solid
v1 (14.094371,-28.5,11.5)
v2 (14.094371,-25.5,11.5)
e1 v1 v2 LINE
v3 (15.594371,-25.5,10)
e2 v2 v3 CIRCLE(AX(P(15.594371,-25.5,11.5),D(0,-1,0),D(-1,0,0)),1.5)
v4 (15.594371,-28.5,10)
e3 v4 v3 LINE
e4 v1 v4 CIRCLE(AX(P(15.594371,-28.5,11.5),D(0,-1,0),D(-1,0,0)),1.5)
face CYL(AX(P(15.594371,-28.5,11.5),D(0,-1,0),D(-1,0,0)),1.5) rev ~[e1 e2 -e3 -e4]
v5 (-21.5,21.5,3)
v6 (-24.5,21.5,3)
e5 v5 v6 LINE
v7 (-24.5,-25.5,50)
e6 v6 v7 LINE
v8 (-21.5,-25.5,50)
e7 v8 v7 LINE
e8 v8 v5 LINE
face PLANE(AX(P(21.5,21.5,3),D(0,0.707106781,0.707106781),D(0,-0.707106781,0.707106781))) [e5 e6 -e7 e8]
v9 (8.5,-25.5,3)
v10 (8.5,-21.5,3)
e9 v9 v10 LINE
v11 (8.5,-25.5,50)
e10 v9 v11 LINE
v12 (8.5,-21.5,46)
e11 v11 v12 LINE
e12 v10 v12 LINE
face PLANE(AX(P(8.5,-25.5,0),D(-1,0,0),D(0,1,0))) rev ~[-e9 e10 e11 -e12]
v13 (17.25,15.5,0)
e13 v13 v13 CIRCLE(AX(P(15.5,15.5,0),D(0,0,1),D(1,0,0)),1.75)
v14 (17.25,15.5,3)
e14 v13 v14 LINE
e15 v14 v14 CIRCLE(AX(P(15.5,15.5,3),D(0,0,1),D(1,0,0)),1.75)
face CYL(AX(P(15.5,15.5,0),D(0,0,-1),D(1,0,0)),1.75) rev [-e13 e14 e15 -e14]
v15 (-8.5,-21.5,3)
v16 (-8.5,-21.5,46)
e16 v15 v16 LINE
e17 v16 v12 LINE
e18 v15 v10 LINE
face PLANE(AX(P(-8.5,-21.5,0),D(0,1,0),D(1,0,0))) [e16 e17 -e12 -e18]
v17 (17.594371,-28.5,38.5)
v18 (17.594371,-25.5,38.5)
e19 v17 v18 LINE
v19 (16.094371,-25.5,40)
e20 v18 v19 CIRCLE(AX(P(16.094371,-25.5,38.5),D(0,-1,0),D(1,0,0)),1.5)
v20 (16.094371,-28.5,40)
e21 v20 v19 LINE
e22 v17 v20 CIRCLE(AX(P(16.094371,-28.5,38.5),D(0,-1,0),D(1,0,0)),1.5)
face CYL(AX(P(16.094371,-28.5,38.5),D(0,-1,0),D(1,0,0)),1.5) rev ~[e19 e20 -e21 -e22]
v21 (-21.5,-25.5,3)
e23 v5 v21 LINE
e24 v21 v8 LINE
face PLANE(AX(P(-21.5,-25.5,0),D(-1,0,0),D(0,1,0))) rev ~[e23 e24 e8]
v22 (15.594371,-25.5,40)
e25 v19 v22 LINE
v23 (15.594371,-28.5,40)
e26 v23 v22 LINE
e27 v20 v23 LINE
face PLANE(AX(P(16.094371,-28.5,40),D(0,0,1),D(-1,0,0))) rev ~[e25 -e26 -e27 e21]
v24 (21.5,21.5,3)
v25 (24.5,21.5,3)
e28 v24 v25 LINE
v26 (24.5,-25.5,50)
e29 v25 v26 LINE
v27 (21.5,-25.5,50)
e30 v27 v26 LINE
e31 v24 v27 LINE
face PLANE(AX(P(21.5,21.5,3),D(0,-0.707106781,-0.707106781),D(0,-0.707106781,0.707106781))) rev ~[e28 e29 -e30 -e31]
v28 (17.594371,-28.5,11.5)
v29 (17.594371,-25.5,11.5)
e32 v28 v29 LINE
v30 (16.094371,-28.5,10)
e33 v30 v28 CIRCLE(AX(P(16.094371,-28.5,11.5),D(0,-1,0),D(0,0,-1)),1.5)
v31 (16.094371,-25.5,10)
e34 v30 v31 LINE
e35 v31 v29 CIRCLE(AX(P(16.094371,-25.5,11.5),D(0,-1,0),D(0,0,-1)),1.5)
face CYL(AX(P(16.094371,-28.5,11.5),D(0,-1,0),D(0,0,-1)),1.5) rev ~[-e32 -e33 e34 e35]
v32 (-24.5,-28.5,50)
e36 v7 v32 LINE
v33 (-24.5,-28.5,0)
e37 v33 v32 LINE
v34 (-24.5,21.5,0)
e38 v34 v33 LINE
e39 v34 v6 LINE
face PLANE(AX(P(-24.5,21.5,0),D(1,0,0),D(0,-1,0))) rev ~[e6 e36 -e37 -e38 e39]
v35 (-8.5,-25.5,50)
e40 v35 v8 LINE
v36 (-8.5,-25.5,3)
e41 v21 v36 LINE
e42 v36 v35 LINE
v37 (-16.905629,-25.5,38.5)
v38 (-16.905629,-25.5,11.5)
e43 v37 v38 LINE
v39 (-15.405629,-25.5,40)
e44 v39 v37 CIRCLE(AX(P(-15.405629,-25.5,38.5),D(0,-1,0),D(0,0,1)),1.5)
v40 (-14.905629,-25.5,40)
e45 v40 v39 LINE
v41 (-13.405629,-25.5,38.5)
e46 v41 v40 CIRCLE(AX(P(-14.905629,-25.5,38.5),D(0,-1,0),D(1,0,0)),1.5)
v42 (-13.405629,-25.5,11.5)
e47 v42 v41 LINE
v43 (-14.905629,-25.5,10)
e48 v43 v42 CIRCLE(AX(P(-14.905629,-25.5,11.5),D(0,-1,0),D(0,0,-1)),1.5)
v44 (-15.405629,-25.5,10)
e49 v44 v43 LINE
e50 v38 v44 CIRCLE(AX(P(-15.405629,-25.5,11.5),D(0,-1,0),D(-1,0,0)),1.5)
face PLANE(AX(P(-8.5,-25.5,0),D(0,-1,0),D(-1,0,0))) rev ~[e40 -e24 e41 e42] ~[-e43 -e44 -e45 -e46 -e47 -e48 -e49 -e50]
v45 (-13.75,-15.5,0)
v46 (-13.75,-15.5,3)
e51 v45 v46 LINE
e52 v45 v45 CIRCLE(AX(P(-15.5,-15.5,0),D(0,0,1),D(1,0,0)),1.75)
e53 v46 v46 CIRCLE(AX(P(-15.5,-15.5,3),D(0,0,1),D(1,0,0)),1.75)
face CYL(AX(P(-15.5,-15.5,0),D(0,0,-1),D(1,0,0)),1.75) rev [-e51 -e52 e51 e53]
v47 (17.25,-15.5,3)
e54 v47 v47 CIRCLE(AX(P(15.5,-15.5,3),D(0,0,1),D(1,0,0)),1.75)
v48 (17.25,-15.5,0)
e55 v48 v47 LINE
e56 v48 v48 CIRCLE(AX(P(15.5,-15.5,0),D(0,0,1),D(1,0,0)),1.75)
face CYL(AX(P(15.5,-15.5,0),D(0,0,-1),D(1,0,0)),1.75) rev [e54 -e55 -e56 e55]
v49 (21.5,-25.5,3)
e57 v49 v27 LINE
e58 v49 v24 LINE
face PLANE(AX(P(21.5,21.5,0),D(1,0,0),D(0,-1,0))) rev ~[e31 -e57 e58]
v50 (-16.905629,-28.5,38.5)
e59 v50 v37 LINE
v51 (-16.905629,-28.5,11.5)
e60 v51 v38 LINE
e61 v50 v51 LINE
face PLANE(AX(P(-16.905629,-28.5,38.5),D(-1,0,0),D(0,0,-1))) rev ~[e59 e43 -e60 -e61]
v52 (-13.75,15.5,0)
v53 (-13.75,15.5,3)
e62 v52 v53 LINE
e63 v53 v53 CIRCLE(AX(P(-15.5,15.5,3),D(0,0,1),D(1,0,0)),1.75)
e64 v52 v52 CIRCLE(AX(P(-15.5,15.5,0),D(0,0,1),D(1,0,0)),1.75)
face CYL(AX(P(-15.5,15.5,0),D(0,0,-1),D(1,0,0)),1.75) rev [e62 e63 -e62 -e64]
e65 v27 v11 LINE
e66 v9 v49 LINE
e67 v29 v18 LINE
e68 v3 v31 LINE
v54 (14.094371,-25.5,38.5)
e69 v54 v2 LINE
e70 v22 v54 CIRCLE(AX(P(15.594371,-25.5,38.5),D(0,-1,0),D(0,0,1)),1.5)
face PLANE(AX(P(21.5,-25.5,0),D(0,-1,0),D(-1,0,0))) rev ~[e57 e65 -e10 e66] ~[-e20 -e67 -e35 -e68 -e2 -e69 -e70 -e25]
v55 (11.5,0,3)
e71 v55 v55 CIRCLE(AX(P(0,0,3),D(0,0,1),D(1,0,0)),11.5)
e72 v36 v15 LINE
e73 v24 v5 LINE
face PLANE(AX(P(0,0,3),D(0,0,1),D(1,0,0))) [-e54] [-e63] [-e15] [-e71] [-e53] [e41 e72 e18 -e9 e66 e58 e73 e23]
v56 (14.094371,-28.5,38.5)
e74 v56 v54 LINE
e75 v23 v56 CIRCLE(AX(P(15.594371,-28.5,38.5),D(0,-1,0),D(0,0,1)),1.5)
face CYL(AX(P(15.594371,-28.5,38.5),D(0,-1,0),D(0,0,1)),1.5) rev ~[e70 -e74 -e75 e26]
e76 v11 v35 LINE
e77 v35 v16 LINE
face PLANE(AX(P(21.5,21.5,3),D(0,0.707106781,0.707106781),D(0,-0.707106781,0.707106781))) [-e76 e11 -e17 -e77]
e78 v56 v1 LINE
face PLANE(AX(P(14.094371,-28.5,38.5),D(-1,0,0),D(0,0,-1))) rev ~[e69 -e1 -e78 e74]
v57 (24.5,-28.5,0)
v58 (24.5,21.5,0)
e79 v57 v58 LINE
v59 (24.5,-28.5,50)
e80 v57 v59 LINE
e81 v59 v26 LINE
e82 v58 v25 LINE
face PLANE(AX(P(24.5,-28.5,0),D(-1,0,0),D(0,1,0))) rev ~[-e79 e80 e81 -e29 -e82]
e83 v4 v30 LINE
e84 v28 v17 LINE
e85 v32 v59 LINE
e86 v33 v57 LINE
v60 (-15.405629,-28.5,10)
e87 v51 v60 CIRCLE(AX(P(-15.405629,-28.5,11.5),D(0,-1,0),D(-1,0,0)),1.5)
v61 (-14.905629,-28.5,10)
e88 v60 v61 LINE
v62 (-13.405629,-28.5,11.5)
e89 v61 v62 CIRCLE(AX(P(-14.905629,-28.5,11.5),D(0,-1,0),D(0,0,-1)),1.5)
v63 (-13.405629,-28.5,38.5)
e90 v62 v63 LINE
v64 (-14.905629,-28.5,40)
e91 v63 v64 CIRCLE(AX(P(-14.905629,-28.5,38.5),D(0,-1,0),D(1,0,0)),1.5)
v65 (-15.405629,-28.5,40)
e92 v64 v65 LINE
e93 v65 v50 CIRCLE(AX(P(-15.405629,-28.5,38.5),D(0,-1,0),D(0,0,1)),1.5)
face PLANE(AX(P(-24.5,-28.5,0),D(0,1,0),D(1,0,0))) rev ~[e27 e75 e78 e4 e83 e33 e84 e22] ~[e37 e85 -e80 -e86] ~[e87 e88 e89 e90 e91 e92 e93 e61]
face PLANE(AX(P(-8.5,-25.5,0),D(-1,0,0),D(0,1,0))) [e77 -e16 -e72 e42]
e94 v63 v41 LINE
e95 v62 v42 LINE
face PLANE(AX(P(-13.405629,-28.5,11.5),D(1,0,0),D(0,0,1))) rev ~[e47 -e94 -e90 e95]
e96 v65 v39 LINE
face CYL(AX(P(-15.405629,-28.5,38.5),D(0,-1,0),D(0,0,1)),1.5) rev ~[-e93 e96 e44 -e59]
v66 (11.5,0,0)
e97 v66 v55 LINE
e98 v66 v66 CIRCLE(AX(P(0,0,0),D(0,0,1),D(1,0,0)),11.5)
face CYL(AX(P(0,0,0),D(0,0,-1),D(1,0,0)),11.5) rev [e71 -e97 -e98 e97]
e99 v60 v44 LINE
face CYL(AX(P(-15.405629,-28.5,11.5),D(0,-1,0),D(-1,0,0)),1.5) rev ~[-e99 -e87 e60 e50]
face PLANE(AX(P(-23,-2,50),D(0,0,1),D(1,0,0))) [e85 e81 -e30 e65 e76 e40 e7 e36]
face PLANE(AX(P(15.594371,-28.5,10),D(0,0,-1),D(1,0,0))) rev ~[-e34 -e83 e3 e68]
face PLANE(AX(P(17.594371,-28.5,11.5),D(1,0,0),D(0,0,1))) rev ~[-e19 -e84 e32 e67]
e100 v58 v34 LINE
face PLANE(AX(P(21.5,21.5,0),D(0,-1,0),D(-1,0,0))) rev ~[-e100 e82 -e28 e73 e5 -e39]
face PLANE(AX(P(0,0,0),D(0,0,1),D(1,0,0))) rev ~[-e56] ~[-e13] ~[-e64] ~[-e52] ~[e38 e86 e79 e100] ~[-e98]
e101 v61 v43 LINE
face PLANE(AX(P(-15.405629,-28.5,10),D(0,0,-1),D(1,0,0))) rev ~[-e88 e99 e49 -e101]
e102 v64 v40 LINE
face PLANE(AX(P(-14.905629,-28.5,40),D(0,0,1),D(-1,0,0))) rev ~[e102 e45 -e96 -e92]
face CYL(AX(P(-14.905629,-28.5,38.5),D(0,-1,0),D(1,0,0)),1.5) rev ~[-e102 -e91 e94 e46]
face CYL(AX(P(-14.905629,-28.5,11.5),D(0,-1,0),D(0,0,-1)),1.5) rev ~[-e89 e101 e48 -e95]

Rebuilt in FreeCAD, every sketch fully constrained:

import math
import FreeCAD as App
import Part
import Sketcher

V = App.Vector
Q = App.Units.Quantity


def add_polygon(sketch, points):
    """Adds a closed chain of lines whose ends are joined by coincident constraints."""
    first, n = sketch.GeometryCount, len(points)
    for a, b in zip(points, points[1:] + points[:1]):
        sketch.addGeometry(Part.LineSegment(App.Vector(*a, 0), App.Vector(*b, 0)), False)
    for i in range(n):
        sketch.addConstraint(Sketcher.Constraint("Coincident", first + i, 2, first + (i + 1) % n, 1))

doc = App.newDocument("Part")
body = doc.addObject("PartDesign::Body", "Body")

# Sketch on XY plane
sketch1 = doc.addObject("Sketcher::SketchObject", "Sketch")
body.addObject(sketch1)
sketch1.AttachmentSupport = (doc.XY_Plane, [""])
sketch1.MapMode = "FlatFace"
add_polygon(sketch1, [(-21.5, 21.5), (-24.5, 21.5), (-24.5, -28.5), (24.5, -28.5), (24.5, 21.5), (21.5, 21.5), (21.5, -25.5), (8.5, -25.5), (8.5, -21.5), (-8.5, -21.5), (-8.5, -25.5), (-21.5, -25.5)])  # lines 0-11
sketch1.addConstraint([
    Sketcher.Constraint("Horizontal", 0),
    Sketcher.Constraint("Vertical", 1),
    Sketcher.Constraint("Horizontal", 2),
    Sketcher.Constraint("Vertical", 3),
    Sketcher.Constraint("Horizontal", 4),
    Sketcher.Constraint("Vertical", 5),
    Sketcher.Constraint("Horizontal", 6),
    Sketcher.Constraint("Vertical", 7),
    Sketcher.Constraint("Horizontal", 8),
    Sketcher.Constraint("Vertical", 9),
    Sketcher.Constraint("Horizontal", 10),
    Sketcher.Constraint("Vertical", 11),
    Sketcher.Constraint("Symmetric", 0, 2, 3, 2, -2),
    Sketcher.Constraint("Symmetric", 6, 2, 9, 2, -2),
    Sketcher.Constraint("Equal", 0, 4),
    Sketcher.Constraint("DistanceX", 0, 2, 0, 1, Q("3 mm")),
    Sketcher.Constraint("DistanceX", 2, 1, 2, 2, Q("49 mm")),
    Sketcher.Constraint("DistanceX", 6, 2, 6, 1, Q("13 mm")),
    Sketcher.Constraint("DistanceY", 1, 2, 1, 1, Q("50 mm")),
    Sketcher.Constraint("DistanceY", 5, 2, 5, 1, Q("47 mm")),
    Sketcher.Constraint("DistanceY", 7, 1, 7, 2, Q("4 mm")),
    Sketcher.Constraint("DistanceY", -1, 1, 0, 2, Q("21.5 mm")),
])
pad1 = doc.addObject("PartDesign::Pad", "Pad")
body.addObject(pad1)
pad1.Profile = sketch1
pad1.Length = 50

# Sketch on XY plane
sketch2 = doc.addObject("Sketcher::SketchObject", "Sketch001")
body.addObject(sketch2)
sketch2.AttachmentSupport = (doc.XY_Plane, [""])
sketch2.MapMode = "FlatFace"
add_polygon(sketch2, [(21.5, 21.5), (-21.5, 21.5), (-21.5, -25.5), (-8.5, -25.5), (-8.5, -21.5), (8.5, -21.5), (8.5, -25.5), (21.5, -25.5)])  # lines 0-7
sketch2.addGeometry(Part.Circle(V(-15.5, -15.5, 0), V(0, 0, 1), 1.8), False)  # 8
sketch2.addGeometry(Part.Circle(V(15.5, -15.5, 0), V(0, 0, 1), 1.8), False)  # 9
sketch2.addGeometry(Part.Circle(V(-15.5, 15.5, 0), V(0, 0, 1), 1.8), False)  # 10
sketch2.addGeometry(Part.Circle(V(0, 0, 0), V(0, 0, 1), 11.5), False)  # 11
sketch2.addGeometry(Part.Circle(V(15.5, 15.5, 0), V(0, 0, 1), 1.8), False)  # 12
sketch2.addConstraint([
    Sketcher.Constraint("Horizontal", 0),
    Sketcher.Constraint("Vertical", 1),
    Sketcher.Constraint("Horizontal", 2),
    Sketcher.Constraint("Vertical", 3),
    Sketcher.Constraint("Horizontal", 4),
    Sketcher.Constraint("Vertical", 5),
    Sketcher.Constraint("Horizontal", 6),
    Sketcher.Constraint("Vertical", 7),
    Sketcher.Constraint("Coincident", 11, 3, -1, 1),
    Sketcher.Constraint("Equal", 8, 9),
    Sketcher.Constraint("Equal", 9, 10),
    Sketcher.Constraint("Equal", 10, 12),
    Sketcher.Constraint("Symmetric", 9, 3, 10, 3, -1, 1),
    Sketcher.Constraint("Symmetric", 8, 3, 12, 3, -1, 1),
    Sketcher.Constraint("Symmetric", 8, 3, 9, 3, -2),
    Sketcher.Constraint("Symmetric", 2, 2, 5, 2, -2),
    Sketcher.Constraint("Equal", 2, 6),
    Sketcher.Constraint("Diameter", 11, Q("23 mm")),
    Sketcher.Constraint("Diameter", 8, Q("3.5 mm")),
    Sketcher.Constraint("DistanceX", 0, 2, 0, 1, Q("43 mm")),
    Sketcher.Constraint("DistanceX", 2, 1, 2, 2, Q("13 mm")),
    Sketcher.Constraint("DistanceY", 1, 2, 1, 1, Q("47 mm")),
    Sketcher.Constraint("DistanceY", 3, 1, 3, 2, Q("4 mm")),
    Sketcher.Constraint("DistanceX", 8, 3, 9, 3, Q("31 mm")),
    Sketcher.Constraint("DistanceY", 8, 3, 10, 3, Q("31 mm")),
    Sketcher.Constraint("DistanceY", 10, 3, 0, 2, Q("6 mm")),
])
pad2 = doc.addObject("PartDesign::Pad", "Pad001")
body.addObject(pad2)
pad2.Profile = sketch2
pad2.Length = 3

# Sketch on YZ plane
sketch3 = doc.addObject("Sketcher::SketchObject", "Sketch002")
body.addObject(sketch3)
sketch3.AttachmentSupport = (doc.YZ_Plane, [""])
sketch3.MapMode = "FlatFace"
sketch3.AttachmentOffset = App.Placement(V(0, 0, 21.5), App.Rotation())
add_polygon(sketch3, [(22, 3), (-26, 50), (22, 50)])  # lines 0-2
sketch3.addConstraint([
    Sketcher.Constraint("Horizontal", 1),
    Sketcher.Constraint("Vertical", 2),
    Sketcher.Constraint("Equal", 1, 2),
    Sketcher.Constraint("DistanceX", 1, 1, 1, 2, Q("47 mm")),
    Sketcher.Constraint("DistanceY", -1, 1, 0, 2, Q("50 mm")),
    Sketcher.Constraint("DistanceX", 0, 2, -1, 1, Q("25.5 mm")),
])
pocket1 = doc.addObject("PartDesign::Pocket", "Pocket")
body.addObject(pocket1)
pocket1.Profile = sketch3
pocket1.Type = "ThroughAll"
pocket1.Midplane = True

# Sketch on XZ plane
sketch4 = doc.addObject("Sketcher::SketchObject", "Sketch003")
body.addObject(sketch4)
sketch4.AttachmentSupport = (doc.XZ_Plane, [""])
sketch4.MapMode = "FlatFace"
sketch4.AttachmentOffset = App.Placement(V(0, 0, 28.5), App.Rotation())
sketch4.addGeometry([
    Part.ArcOfCircle(Part.Circle(V(16.09, 38.5, 0), V(0, 0, 1), 1.5), math.radians(0), math.radians(90)),  # 0
    Part.LineSegment(V(16.09, 40, 0), V(15.59, 40, 0)),  # 1
    Part.ArcOfCircle(Part.Circle(V(15.59, 38.5, 0), V(0, 0, 1), 1.5), math.radians(90), math.radians(180)),  # 2
    Part.LineSegment(V(14.09, 38.5, 0), V(14.09, 11.5, 0)),  # 3
    Part.ArcOfCircle(Part.Circle(V(15.59, 11.5, 0), V(0, 0, 1), 1.5), math.radians(180), math.radians(270)),  # 4
    Part.LineSegment(V(15.59, 10, 0), V(16.09, 10, 0)),  # 5
    Part.ArcOfCircle(Part.Circle(V(16.09, 11.5, 0), V(0, 0, 1), 1.5), math.radians(-90), math.radians(0)),  # 6
    Part.LineSegment(V(17.59, 11.5, 0), V(17.59, 38.5, 0)),  # 7
    Part.LineSegment(V(-13.41, 11.5, 0), V(-13.41, 38.5, 0)),  # 8
    Part.ArcOfCircle(Part.Circle(V(-14.91, 38.5, 0), V(0, 0, 1), 1.5), math.radians(0), math.radians(90)),  # 9
    Part.LineSegment(V(-14.91, 40, 0), V(-15.41, 40, 0)),  # 10
    Part.ArcOfCircle(Part.Circle(V(-15.41, 38.5, 0), V(0, 0, 1), 1.5), math.radians(90), math.radians(180)),  # 11
    Part.LineSegment(V(-16.91, 38.5, 0), V(-16.91, 11.5, 0)),  # 12
    Part.ArcOfCircle(Part.Circle(V(-15.41, 11.5, 0), V(0, 0, 1), 1.5), math.radians(180), math.radians(270)),  # 13
    Part.LineSegment(V(-15.41, 10, 0), V(-14.91, 10, 0)),  # 14
    Part.ArcOfCircle(Part.Circle(V(-14.91, 11.5, 0), V(0, 0, 1), 1.5), math.radians(-90), math.radians(0)),  # 15
], False)
sketch4.addConstraint([
    Sketcher.Constraint("Tangent", 0, 2, 1, 1),
    Sketcher.Constraint("Tangent", 1, 2, 2, 1),
    Sketcher.Constraint("Tangent", 2, 2, 3, 1),
    Sketcher.Constraint("Tangent", 3, 2, 4, 1),
    Sketcher.Constraint("Tangent", 4, 2, 5, 1),
    Sketcher.Constraint("Tangent", 5, 2, 6, 1),
    Sketcher.Constraint("Tangent", 6, 2, 7, 1),
    Sketcher.Constraint("Tangent", 7, 2, 0, 1),
    Sketcher.Constraint("Tangent", 8, 2, 9, 1),
    Sketcher.Constraint("Tangent", 9, 2, 10, 1),
    Sketcher.Constraint("Tangent", 10, 2, 11, 1),
    Sketcher.Constraint("Tangent", 11, 2, 12, 1),
    Sketcher.Constraint("Tangent", 12, 2, 13, 1),
    Sketcher.Constraint("Tangent", 13, 2, 14, 1),
    Sketcher.Constraint("Tangent", 14, 2, 15, 1),
    Sketcher.Constraint("Tangent", 15, 2, 8, 1),
    Sketcher.Constraint("Horizontal", 1),
    Sketcher.Constraint("Vertical", 3),
    Sketcher.Constraint("Horizontal", 5),
    Sketcher.Constraint("Vertical", 7),
    Sketcher.Constraint("Vertical", 8),
    Sketcher.Constraint("Horizontal", 10),
    Sketcher.Constraint("Vertical", 12),
    Sketcher.Constraint("Horizontal", 14),
    Sketcher.Constraint("Equal", 0, 2),
    Sketcher.Constraint("Equal", 2, 4),
    Sketcher.Constraint("Equal", 4, 6),
    Sketcher.Constraint("Equal", 6, 9),
    Sketcher.Constraint("Equal", 9, 11),
    Sketcher.Constraint("Equal", 11, 13),
    Sketcher.Constraint("Equal", 13, 15),
    Sketcher.Constraint("Horizontal", 2, 3, 9, 3),
    Sketcher.Constraint("Horizontal", 6, 3, 13, 3),
    Sketcher.Constraint("Equal", 5, 10),
    Sketcher.Constraint("Radius", 0, Q("1.5 mm")),
    Sketcher.Constraint("DistanceY", 3, 2, 3, 1, Q("27 mm")),
    Sketcher.Constraint("DistanceX", 1, 2, 1, 1, Q("0.5 mm")),
    Sketcher.Constraint("DistanceY", -1, 1, 0, 2, Q("40 mm")),
    Sketcher.Constraint("DistanceX", 9, 3, 0, 3, Q("31 mm")),
    Sketcher.Constraint("DistanceX", -1, 1, 0, 3, Q("16.094371 mm")),
])
pocket2 = doc.addObject("PartDesign::Pocket", "Pocket001")
body.addObject(pocket2)
pocket2.Profile = sketch4
pocket2.Length = 3
body2 = doc.addObject("PartDesign::Body", "Body001")
doc.recompute()

body2.BaseFeature = body
doc.recompute()
body3 = doc.addObject("PartDesign::Body", "Body002")
doc.recompute()

body3.BaseFeature = body
doc.recompute()
body.Visibility = False
body2.Visibility = False

doc.recompute()
